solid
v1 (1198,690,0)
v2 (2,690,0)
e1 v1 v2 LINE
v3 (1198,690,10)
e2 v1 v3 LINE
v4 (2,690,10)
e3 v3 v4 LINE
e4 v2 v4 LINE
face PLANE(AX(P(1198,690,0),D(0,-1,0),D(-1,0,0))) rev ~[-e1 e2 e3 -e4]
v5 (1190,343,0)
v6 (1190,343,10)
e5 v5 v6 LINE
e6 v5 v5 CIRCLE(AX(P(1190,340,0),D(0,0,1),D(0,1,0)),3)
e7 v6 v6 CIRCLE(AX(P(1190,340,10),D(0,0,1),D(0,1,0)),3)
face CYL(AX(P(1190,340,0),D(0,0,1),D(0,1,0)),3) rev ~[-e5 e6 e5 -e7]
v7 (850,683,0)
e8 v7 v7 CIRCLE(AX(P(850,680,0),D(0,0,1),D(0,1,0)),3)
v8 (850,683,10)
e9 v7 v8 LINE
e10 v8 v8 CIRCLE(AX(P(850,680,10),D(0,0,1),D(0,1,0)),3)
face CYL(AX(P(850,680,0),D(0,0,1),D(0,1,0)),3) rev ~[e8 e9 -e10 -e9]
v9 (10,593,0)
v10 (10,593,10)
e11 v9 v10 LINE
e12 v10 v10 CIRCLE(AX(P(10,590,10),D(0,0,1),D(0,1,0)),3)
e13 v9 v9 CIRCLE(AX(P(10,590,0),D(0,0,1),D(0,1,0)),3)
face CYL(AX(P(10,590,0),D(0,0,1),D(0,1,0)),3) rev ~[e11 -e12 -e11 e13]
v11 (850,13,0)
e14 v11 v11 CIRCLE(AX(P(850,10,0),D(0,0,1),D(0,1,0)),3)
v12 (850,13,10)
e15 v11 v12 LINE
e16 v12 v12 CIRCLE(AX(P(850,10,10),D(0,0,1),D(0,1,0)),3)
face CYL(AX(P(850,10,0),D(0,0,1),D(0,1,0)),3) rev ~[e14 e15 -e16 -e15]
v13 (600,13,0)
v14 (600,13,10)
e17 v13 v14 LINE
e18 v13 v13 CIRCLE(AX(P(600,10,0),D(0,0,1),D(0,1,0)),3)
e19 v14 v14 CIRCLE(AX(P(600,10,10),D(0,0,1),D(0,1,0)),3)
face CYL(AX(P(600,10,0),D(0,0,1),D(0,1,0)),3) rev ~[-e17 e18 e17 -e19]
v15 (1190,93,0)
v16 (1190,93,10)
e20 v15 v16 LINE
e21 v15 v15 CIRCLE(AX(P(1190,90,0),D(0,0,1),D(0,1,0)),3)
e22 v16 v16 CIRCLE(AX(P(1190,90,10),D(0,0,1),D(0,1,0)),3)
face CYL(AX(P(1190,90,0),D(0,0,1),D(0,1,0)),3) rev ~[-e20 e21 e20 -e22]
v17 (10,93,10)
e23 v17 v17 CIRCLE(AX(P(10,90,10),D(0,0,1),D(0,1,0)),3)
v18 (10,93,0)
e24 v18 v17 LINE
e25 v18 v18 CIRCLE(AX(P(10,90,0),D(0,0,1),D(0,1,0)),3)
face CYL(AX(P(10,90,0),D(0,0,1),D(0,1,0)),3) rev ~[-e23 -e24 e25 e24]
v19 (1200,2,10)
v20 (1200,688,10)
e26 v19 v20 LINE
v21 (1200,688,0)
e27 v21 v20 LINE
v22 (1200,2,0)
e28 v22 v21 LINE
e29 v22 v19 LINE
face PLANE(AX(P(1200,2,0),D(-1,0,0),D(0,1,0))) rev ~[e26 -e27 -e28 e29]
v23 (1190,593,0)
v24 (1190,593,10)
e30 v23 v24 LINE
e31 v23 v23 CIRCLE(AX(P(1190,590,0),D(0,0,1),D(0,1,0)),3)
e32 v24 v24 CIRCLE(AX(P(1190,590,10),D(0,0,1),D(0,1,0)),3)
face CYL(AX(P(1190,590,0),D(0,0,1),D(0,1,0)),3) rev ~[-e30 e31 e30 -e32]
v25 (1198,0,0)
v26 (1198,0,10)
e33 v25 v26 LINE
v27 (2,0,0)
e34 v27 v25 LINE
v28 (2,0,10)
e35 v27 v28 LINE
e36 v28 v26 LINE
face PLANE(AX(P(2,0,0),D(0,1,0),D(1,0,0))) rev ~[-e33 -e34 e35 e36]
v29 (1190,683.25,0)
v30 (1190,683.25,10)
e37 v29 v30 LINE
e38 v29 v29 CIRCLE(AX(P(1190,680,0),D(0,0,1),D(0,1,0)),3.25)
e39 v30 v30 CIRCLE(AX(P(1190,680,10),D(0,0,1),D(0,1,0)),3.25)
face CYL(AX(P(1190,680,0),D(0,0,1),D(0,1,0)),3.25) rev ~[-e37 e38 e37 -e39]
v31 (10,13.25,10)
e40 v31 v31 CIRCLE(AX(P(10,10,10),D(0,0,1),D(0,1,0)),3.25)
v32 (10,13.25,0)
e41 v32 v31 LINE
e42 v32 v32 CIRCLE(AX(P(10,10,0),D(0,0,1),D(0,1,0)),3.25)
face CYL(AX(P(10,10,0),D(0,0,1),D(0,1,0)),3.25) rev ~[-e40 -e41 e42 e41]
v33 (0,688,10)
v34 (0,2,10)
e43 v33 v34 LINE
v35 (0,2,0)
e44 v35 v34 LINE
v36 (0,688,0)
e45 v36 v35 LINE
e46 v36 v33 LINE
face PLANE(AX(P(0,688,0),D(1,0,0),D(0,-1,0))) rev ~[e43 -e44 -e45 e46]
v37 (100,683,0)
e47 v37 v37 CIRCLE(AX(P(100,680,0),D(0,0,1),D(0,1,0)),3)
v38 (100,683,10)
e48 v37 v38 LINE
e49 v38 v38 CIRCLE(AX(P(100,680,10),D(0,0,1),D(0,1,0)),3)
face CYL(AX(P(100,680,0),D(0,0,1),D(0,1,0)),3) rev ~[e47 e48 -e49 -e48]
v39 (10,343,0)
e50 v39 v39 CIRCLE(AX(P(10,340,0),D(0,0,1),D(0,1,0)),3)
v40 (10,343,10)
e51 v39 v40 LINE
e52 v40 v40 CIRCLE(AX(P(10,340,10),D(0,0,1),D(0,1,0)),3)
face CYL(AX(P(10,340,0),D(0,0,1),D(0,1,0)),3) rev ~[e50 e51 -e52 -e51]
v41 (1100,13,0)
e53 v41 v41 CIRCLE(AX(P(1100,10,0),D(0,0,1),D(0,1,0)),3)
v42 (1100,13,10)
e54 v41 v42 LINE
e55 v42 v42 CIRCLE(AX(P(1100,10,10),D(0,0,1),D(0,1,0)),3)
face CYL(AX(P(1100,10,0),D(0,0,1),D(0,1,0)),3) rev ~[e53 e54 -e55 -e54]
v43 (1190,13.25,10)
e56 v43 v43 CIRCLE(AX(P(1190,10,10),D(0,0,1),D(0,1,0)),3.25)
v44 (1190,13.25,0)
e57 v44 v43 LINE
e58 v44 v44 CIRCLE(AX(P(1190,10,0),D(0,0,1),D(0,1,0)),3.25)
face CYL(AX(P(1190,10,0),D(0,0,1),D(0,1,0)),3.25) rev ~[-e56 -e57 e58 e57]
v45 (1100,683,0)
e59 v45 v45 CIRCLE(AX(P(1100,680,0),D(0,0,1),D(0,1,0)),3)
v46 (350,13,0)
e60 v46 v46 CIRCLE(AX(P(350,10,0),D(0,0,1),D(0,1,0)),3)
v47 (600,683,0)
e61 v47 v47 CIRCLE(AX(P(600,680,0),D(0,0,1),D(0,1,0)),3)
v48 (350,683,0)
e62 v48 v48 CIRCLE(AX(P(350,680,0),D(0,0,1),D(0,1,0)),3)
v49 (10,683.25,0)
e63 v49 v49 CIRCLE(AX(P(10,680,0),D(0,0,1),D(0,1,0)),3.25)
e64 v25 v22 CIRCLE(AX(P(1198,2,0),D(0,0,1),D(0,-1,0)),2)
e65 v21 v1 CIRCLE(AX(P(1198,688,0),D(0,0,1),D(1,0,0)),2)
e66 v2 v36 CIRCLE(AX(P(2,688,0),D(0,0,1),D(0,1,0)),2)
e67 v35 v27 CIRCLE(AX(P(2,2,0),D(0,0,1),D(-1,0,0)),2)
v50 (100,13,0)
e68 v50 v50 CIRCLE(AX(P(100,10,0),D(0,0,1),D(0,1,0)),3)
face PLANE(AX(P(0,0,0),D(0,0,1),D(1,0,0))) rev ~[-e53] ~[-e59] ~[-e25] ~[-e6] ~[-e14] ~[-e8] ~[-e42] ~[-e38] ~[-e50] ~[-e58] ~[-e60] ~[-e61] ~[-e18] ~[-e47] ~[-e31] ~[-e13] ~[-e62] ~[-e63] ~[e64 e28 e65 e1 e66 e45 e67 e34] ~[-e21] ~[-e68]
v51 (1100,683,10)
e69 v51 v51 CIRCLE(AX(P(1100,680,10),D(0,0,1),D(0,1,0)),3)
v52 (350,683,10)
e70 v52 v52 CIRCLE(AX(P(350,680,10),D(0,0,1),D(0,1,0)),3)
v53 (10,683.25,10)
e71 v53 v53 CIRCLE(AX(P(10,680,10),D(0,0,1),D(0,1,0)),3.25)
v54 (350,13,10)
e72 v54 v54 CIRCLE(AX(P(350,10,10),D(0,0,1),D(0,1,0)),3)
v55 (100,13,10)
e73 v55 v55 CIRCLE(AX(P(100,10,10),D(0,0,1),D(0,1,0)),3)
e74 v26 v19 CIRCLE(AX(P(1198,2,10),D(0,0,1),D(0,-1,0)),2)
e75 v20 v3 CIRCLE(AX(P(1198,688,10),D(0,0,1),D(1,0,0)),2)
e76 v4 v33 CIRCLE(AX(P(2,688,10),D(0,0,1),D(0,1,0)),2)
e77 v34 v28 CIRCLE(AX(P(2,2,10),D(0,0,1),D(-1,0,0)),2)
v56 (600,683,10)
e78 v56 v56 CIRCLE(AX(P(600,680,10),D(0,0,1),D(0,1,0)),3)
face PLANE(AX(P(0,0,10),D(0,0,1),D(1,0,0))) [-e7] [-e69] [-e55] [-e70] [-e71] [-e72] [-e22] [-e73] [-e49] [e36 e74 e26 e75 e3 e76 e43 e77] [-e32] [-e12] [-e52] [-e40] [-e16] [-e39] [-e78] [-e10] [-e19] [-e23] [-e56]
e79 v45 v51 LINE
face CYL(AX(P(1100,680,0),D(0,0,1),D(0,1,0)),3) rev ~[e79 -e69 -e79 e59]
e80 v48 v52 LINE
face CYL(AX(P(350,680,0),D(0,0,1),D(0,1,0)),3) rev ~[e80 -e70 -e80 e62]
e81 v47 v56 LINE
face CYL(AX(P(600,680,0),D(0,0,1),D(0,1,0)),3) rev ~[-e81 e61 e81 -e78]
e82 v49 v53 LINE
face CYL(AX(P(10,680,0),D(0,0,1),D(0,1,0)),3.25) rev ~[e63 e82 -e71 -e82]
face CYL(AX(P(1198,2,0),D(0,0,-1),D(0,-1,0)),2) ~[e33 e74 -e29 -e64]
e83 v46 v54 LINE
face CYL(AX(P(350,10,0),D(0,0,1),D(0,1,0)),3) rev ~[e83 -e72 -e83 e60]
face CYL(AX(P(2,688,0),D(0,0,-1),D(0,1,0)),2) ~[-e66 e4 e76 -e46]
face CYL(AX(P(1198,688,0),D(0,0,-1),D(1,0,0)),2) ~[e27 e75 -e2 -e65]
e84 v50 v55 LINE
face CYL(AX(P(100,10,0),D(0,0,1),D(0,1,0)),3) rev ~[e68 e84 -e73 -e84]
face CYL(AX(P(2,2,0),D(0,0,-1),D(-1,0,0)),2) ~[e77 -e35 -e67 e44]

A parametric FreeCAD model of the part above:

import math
import FreeCAD as App
import Part
import Sketcher

V = App.Vector

doc = App.newDocument("Part")
body = doc.addObject("PartDesign::Body", "Body")

sketch1 = body.newObject("Sketcher::SketchObject", "Sketch")
sketch1.AttachmentSupport = (doc.getObject("XY_Plane"), [""])
sketch1.MapMode = "FlatFace"
sketch1.addGeometry(Part.ArcOfCircle(Part.Circle(V(2, 2, 0), V(0, 0, 1), 2), math.radians(180), math.radians(270)), False)
sketch1.addGeometry(Part.LineSegment(V(2, 0, 0), V(1198, 0, 0)), False)
sketch1.addGeometry(Part.ArcOfCircle(Part.Circle(V(1198, 2, 0), V(0, 0, 1), 2), math.radians(-90), math.radians(0)), False)
sketch1.addGeometry(Part.LineSegment(V(1200, 2, 0), V(1200, 688, 0)), False)
sketch1.addGeometry(Part.ArcOfCircle(Part.Circle(V(1198, 688, 0), V(0, 0, 1), 2), math.radians(0), math.radians(90)), False)
sketch1.addGeometry(Part.LineSegment(V(1198, 690, 0), V(2, 690, 0)), False)
sketch1.addGeometry(Part.ArcOfCircle(Part.Circle(V(2, 688, 0), V(0, 0, 1), 2), math.radians(90), math.radians(180)), False)
sketch1.addGeometry(Part.LineSegment(V(0, 688, 0), V(0, 2, 0)), False)
sketch1.addConstraint(Sketcher.Constraint("Tangent", 0, 2, 1, 1))
sketch1.addConstraint(Sketcher.Constraint("Tangent", 1, 2, 2, 1))
sketch1.addConstraint(Sketcher.Constraint("Tangent", 2, 2, 3, 1))
sketch1.addConstraint(Sketcher.Constraint("Tangent", 3, 2, 4, 1))
sketch1.addConstraint(Sketcher.Constraint("Tangent", 4, 2, 5, 1))
sketch1.addConstraint(Sketcher.Constraint("Tangent", 5, 2, 6, 1))
sketch1.addConstraint(Sketcher.Constraint("Tangent", 6, 2, 7, 1))
sketch1.addConstraint(Sketcher.Constraint("Tangent", 7, 2, 0, 1))
sketch1.addConstraint(Sketcher.Constraint("Horizontal", 1))
sketch1.addConstraint(Sketcher.Constraint("Vertical", 3))
sketch1.addConstraint(Sketcher.Constraint("Horizontal", 5))
sketch1.addConstraint(Sketcher.Constraint("Vertical", 7))
sketch1.addConstraint(Sketcher.Constraint("Equal", 0, 2))
sketch1.addConstraint(Sketcher.Constraint("Equal", 2, 4))
sketch1.addConstraint(Sketcher.Constraint("Equal", 4, 6))
sketch1.addConstraint(Sketcher.Constraint("PointOnObject", 0, 2, -1))
sketch1.addConstraint(Sketcher.Constraint("PointOnObject", 6, 2, -2))
sketch1.addConstraint(Sketcher.Constraint("Radius", 0, 2.0))
sketch1.addConstraint(Sketcher.Constraint("DistanceX", -1, 1, 2, 2, 1200.0))
sketch1.addConstraint(Sketcher.Constraint("DistanceY", -1, 1, 4, 2, 690.0))
pad1 = body.newObject("PartDesign::Pad", "Pad")
pad1.Profile = sketch1
pad1.Length = 10

sketch2 = body.newObject("Sketcher::SketchObject", "Sketch001")
sketch2.AttachmentSupport = (doc.getObject("XY_Plane"), [""])
sketch2.MapMode = "FlatFace"
sketch2.addGeometry(Part.Circle(V(10, 10, 0), V(0, 0, 1), 3.25), False)
sketch2.addGeometry(Part.Circle(V(1190, 10, 0), V(0, 0, 1), 3.25), False)
sketch2.addGeometry(Part.Circle(V(1190, 680, 0), V(0, 0, 1), 3.25), False)
sketch2.addGeometry(Part.Circle(V(10, 680, 0), V(0, 0, 1), 3.25), False)
sketch2.addConstraint(Sketcher.Constraint("Equal", 0, 1))
sketch2.addConstraint(Sketcher.Constraint("Equal", 1, 2))
sketch2.addConstraint(Sketcher.Constraint("Equal", 2, 3))
sketch2.addConstraint(Sketcher.Constraint("Horizontal", 0, 3, 1, 3))
sketch2.addConstraint(Sketcher.Constraint("Horizontal", 2, 3, 3, 3))
sketch2.addConstraint(Sketcher.Constraint("Vertical", 1, 3, 2, 3))
sketch2.addConstraint(Sketcher.Constraint("Vertical", 0, 3, 3, 3))
sketch2.addConstraint(Sketcher.Constraint("Diameter", 0, 6.5))
sketch2.addConstraint(Sketcher.Constraint("DistanceX", -1, 1, 0, 3, 10.0))
sketch2.addConstraint(Sketcher.Constraint("DistanceY", -1, 1, 0, 3, 10.0))
sketch2.addConstraint(Sketcher.Constraint("DistanceX", -1, 1, 1, 3, 1190.0))
sketch2.addConstraint(Sketcher.Constraint("DistanceY", -1, 1, 2, 3, 680.0))
doc.recompute()
hole = body.newObject("PartDesign::Hole", "Hole")
hole.Profile = sketch2
hole.ThreadType = "None"
hole.Diameter = 6.5
hole.DepthType = "ThroughAll"
hole.Reversed = True

sketch3 = body.newObject("Sketcher::SketchObject", "Sketch002")
sketch3.AttachmentSupport = (doc.getObject("XY_Plane"), [""])
sketch3.MapMode = "FlatFace"
sketch3.addGeometry(Part.Circle(V(10, 590, 0), V(0, 0, 1), 3), False)
sketch3.addGeometry(Part.Circle(V(10, 90, 0), V(0, 0, 1), 3), False)
sketch3.addGeometry(Part.Circle(V(100, 10, 0), V(0, 0, 1), 3), False)
sketch3.addGeometry(Part.Circle(V(350, 10, 0), V(0, 0, 1), 3), False)
sketch3.addGeometry(Part.Circle(V(600, 10, 0), V(0, 0, 1), 3), False)
sketch3.addGeometry(Part.Circle(V(600, 680, 0), V(0, 0, 1), 3), False)
sketch3.addGeometry(Part.Circle(V(850, 10, 0), V(0, 0, 1), 3), False)
sketch3.addGeometry(Part.Circle(V(1100, 10, 0), V(0, 0, 1), 3), False)
sketch3.addGeometry(Part.Circle(V(1190, 90, 0), V(0, 0, 1), 3), False)
sketch3.addGeometry(Part.Circle(V(1190, 340, 0), V(0, 0, 1), 3), False)
sketch3.addGeometry(Part.Circle(V(1190, 590, 0), V(0, 0, 1), 3), False)
sketch3.addGeometry(Part.Circle(V(1100, 680, 0), V(0, 0, 1), 3), False)
sketch3.addGeometry(Part.Circle(V(850, 680, 0), V(0, 0, 1), 3), False)
sketch3.addConstraint(Sketcher.Constraint("Equal", 0, 1))
sketch3.addConstraint(Sketcher.Constraint("Equal", 1, 2))
sketch3.addConstraint(Sketcher.Constraint("Equal", 2, 3))
sketch3.addConstraint(Sketcher.Constraint("Equal", 3, 4))
sketch3.addConstraint(Sketcher.Constraint("Equal", 4, 5))
sketch3.addConstraint(Sketcher.Constraint("Equal", 5, 6))
sketch3.addConstraint(Sketcher.Constraint("Equal", 6, 7))
sketch3.addConstraint(Sketcher.Constraint("Equal", 7, 8))
sketch3.addConstraint(Sketcher.Constraint("Equal", 8, 9))
sketch3.addConstraint(Sketcher.Constraint("Equal", 9, 10))
sketch3.addConstraint(Sketcher.Constraint("Equal", 10, 11))
sketch3.addConstraint(Sketcher.Constraint("Equal", 11, 12))
sketch3.addConstraint(Sketcher.Constraint("Horizontal", 2, 3, 3, 3))
sketch3.addConstraint(Sketcher.Constraint("Horizontal", 3, 3, 4, 3))
sketch3.addConstraint(Sketcher.Constraint("Horizontal", 4, 3, 6, 3))
sketch3.addConstraint(Sketcher.Constraint("Horizontal", 6, 3, 7, 3))
sketch3.addConstraint(Sketcher.Constraint("Horizontal", 1, 3, 8, 3))
sketch3.addConstraint(Sketcher.Constraint("Horizontal", 0, 3, 10, 3))
sketch3.addConstraint(Sketcher.Constraint("Horizontal", 5, 3, 11, 3))
sketch3.addConstraint(Sketcher.Constraint("Horizontal", 11, 3, 12, 3))
sketch3.addConstraint(Sketcher.Constraint("Vertical", 0, 3, 1, 3))
sketch3.addConstraint(Sketcher.Constraint("Vertical", 4, 3, 5, 3))
sketch3.addConstraint(Sketcher.Constraint("Vertical", 8, 3, 9, 3))
sketch3.addConstraint(Sketcher.Constraint("Vertical", 9, 3, 10, 3))
sketch3.addConstraint(Sketcher.Constraint("Vertical", 7, 3, 11, 3))
sketch3.addConstraint(Sketcher.Constraint("Vertical", 6, 3, 12, 3))
sketch3.addConstraint(Sketcher.Constraint("Diameter", 0, 6.0))
sketch3.addConstraint(Sketcher.Constraint("DistanceX", -1, 1, 0, 3, 10.0))
sketch3.addConstraint(Sketcher.Constraint("DistanceY", -1, 1, 0, 3, 590.0))
sketch3.addConstraint(Sketcher.Constraint("DistanceY", -1, 1, 1, 3, 90.0))
sketch3.addConstraint(Sketcher.Constraint("DistanceX", -1, 1, 2, 3, 100.0))
sketch3.addConstraint(Sketcher.Constraint("DistanceY", -1, 1, 2, 3, 10.0))
sketch3.addConstraint(Sketcher.Constraint("DistanceX", -1, 1, 3, 3, 350.0))
sketch3.addConstraint(Sketcher.Constraint("DistanceX", -1, 1, 4, 3, 600.0))
sketch3.addConstraint(Sketcher.Constraint("DistanceY", -1, 1, 5, 3, 680.0))
sketch3.addConstraint(Sketcher.Constraint("DistanceX", -1, 1, 6, 3, 850.0))
sketch3.addConstraint(Sketcher.Constraint("DistanceX", -1, 1, 7, 3, 1100.0))
sketch3.addConstraint(Sketcher.Constraint("DistanceX", -1, 1, 8, 3, 1190.0))
sketch3.addConstraint(Sketcher.Constraint("DistanceY", -1, 1, 9, 3, 340.0))
doc.recompute()
hole2 = body.newObject("PartDesign::Hole", "Hole001")
hole2.Profile = sketch3
hole2.ThreadType = "None"
hole2.Diameter = 6
hole2.DepthType = "ThroughAll"
hole2.Reversed = True

sketch4 = body.newObject("Sketcher::SketchObject", "Sketch003")
sketch4.AttachmentSupport = (doc.getObject("XY_Plane"), [""])
sketch4.MapMode = "FlatFace"
sketch4.addGeometry(Part.Circle(V(100, 680, 0), V(0, 0, 1), 3), False)
sketch4.addConstraint(Sketcher.Constraint("Diameter", 0, 6.0))
sketch4.addConstraint(Sketcher.Constraint("DistanceX", -1, 1, 0, 3, 100.0))
sketch4.addConstraint(Sketcher.Constraint("DistanceY", -1, 1, 0, 3, 680.0))
doc.recompute()
hole3 = body.newObject("PartDesign::Hole", "Hole002")
hole3.Profile = sketch4
hole3.ThreadType = "None"
hole3.Diameter = 6
hole3.DepthType = "ThroughAll"
hole3.Reversed = True

sketch5 = body.newObject("Sketcher::SketchObject", "Sketch004")
sketch5.AttachmentSupport = (doc.getObject("XY_Plane"), [""])
sketch5.MapMode = "FlatFace"
sketch5.addGeometry(Part.Circle(V(350, 680, 0), V(0, 0, 1), 3), False)
sketch5.addConstraint(Sketcher.Constraint("Diameter", 0, 6.0))
sketch5.addConstraint(Sketcher.Constraint("DistanceX", -1, 1, 0, 3, 350.0))
sketch5.addConstraint(Sketcher.Constraint("DistanceY", -1, 1, 0, 3, 680.0))
doc.recompute()
hole4 = body.newObject("PartDesign::Hole", "Hole003")
hole4.Profile = sketch5
hole4.ThreadType = "None"
hole4.Diameter = 6
hole4.DepthType = "ThroughAll"
hole4.Reversed = True

sketch6 = body.newObject("Sketcher::SketchObject", "Sketch005")
sketch6.AttachmentSupport = (doc.getObject("XY_Plane"), [""])
sketch6.MapMode = "FlatFace"
sketch6.addGeometry(Part.Circle(V(10, 340, 0), V(0, 0, 1), 3), False)
sketch6.addConstraint(Sketcher.Constraint("Diameter", 0, 6.0))
sketch6.addConstraint(Sketcher.Constraint("DistanceX", -1, 1, 0, 3, 10.0))
sketch6.addConstraint(Sketcher.Constraint("DistanceY", -1, 1, 0, 3, 340.0))
doc.recompute()
hole5 = body.newObject("PartDesign::Hole", "Hole004")
hole5.Profile = sketch6
hole5.ThreadType = "None"
hole5.Diameter = 6
hole5.DepthType = "ThroughAll"
hole5.Reversed = True

doc.recompute()
